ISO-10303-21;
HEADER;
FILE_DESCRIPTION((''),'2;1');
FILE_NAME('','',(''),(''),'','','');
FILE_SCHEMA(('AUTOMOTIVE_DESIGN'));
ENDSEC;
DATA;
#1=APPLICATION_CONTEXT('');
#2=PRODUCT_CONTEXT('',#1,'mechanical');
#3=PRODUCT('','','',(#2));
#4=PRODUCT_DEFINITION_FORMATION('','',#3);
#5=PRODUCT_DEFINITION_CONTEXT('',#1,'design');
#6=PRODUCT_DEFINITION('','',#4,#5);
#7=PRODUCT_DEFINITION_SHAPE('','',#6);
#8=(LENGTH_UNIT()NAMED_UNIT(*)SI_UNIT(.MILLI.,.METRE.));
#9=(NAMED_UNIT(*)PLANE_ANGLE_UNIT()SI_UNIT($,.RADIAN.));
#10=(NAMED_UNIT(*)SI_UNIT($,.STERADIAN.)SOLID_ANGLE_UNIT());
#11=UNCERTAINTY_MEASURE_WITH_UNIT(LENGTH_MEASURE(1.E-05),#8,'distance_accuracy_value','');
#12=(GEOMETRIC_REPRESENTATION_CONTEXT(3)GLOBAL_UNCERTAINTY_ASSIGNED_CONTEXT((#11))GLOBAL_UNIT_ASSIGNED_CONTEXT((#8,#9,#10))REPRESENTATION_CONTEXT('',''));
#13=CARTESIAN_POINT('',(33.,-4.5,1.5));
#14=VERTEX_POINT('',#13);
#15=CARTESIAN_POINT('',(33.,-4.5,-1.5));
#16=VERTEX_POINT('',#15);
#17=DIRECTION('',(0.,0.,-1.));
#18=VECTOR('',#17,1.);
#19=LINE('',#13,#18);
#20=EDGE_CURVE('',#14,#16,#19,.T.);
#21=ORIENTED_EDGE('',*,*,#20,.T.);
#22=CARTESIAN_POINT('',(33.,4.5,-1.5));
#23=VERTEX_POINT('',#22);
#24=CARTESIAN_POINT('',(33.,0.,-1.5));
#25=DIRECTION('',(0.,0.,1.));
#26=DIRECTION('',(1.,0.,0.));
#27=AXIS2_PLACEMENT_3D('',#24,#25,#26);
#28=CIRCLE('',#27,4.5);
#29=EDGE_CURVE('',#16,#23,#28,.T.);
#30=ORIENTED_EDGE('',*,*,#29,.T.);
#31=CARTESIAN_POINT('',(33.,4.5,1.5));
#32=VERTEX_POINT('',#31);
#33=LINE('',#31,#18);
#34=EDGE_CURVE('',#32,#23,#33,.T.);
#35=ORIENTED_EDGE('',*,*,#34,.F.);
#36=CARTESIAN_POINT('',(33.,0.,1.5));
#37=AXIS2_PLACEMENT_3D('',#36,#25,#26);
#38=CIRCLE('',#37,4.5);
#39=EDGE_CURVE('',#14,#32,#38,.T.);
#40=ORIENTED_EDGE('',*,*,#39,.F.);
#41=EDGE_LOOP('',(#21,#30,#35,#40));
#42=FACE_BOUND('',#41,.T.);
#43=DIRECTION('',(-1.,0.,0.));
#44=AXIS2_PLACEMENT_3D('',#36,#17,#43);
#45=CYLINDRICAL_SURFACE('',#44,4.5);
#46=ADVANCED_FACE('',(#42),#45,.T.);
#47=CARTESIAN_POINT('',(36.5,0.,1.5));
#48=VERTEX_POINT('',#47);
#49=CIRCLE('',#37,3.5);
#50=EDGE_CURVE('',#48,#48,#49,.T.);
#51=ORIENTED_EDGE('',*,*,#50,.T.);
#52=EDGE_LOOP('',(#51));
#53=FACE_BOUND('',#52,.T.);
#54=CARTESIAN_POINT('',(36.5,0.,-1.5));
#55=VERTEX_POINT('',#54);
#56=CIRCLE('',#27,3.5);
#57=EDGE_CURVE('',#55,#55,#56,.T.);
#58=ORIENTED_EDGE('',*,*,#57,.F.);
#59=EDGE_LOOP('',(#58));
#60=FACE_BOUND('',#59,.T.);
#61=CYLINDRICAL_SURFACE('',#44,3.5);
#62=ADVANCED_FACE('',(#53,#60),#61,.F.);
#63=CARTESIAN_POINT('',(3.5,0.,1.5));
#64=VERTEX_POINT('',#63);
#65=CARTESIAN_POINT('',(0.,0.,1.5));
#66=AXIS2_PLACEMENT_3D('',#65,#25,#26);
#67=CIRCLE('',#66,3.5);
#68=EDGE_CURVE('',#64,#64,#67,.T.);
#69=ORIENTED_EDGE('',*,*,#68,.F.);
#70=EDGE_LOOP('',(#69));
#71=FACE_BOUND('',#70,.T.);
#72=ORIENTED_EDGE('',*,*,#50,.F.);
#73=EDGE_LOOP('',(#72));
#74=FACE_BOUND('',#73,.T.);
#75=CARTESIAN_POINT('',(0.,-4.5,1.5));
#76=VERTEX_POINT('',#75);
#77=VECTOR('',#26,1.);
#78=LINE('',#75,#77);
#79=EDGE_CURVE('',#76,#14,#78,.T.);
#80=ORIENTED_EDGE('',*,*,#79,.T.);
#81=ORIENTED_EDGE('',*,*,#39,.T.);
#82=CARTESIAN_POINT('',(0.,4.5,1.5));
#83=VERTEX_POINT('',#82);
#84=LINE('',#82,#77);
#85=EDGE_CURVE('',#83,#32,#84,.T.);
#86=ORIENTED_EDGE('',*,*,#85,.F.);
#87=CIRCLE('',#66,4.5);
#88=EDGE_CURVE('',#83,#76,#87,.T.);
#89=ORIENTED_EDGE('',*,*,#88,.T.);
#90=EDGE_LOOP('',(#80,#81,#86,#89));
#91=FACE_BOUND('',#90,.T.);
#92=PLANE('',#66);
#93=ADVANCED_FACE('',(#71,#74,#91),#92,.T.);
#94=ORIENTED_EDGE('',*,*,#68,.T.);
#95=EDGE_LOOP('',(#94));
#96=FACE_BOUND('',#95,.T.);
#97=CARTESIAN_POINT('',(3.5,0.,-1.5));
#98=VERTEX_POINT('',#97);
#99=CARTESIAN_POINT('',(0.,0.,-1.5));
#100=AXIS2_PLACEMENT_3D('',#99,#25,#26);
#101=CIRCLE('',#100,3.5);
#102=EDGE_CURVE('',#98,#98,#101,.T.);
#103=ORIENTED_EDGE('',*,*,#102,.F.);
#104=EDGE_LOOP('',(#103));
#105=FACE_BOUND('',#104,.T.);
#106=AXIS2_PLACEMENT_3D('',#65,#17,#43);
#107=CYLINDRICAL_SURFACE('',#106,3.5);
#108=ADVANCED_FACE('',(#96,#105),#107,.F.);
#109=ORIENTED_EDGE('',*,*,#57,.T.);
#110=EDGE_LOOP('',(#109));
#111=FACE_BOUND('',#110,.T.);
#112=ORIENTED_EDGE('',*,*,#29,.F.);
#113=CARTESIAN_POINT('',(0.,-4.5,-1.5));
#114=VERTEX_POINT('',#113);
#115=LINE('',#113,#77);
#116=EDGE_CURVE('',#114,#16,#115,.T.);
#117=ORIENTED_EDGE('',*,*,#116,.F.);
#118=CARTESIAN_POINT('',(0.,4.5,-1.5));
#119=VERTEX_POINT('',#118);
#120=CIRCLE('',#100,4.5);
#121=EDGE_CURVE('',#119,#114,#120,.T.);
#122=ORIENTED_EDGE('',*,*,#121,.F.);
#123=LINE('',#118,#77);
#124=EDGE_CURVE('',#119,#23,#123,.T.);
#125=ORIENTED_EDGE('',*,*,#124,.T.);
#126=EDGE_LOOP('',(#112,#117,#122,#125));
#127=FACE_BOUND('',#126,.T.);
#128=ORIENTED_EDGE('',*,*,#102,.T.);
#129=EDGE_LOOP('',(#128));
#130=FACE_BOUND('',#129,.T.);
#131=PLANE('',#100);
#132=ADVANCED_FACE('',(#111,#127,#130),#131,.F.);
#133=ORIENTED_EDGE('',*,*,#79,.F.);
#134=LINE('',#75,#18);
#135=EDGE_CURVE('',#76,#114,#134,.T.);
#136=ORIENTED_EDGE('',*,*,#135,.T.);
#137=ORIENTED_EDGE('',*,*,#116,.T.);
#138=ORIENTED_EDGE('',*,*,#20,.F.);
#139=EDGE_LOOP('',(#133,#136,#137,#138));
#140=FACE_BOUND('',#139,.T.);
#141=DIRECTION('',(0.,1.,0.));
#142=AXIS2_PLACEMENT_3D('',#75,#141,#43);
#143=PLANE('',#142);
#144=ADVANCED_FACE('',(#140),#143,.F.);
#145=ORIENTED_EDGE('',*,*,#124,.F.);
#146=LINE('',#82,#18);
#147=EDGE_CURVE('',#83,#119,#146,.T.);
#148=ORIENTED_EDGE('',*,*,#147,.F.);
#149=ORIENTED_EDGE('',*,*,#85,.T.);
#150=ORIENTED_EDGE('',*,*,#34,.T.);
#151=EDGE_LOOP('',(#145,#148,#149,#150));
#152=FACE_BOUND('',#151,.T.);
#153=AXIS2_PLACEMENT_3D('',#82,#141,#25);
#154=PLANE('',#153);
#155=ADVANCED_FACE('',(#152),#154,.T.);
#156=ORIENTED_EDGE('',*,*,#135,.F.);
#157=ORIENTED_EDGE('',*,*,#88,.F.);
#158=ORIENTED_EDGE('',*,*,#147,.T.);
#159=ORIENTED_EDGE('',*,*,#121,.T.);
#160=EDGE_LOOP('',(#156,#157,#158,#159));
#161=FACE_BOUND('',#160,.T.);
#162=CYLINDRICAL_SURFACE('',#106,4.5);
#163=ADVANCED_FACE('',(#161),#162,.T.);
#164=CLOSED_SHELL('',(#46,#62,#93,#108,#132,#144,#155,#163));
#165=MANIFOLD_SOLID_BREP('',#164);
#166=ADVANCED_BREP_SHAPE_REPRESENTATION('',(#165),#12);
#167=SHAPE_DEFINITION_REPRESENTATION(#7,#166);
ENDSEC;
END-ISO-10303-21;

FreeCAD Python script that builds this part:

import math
import FreeCAD as App
import Part
import Sketcher
from FreeCAD import Vector
Q = App.Units.Quantity

doc = App.newDocument("Part")
body = doc.addObject("PartDesign::Body", "Body")

sketch1 = body.newObject("Sketcher::SketchObject", "Sketch")
sketch1.AttachmentSupport = (doc.getObject("XY_Plane"), [""])
sketch1.MapMode = "FlatFace"
sketch1.addGeometry(Part.ArcOfCircle(Part.Circle(Vector(0, 0, 0), Vector(0, 0, 1), 4.5), math.radians(90), math.radians(270)), False)
sketch1.addGeometry(Part.LineSegment(Vector(0, -4.5, 0), Vector(33, -4.5, 0)), False)
sketch1.addGeometry(Part.ArcOfCircle(Part.Circle(Vector(33, 0, 0), Vector(0, 0, 1), 4.5), math.radians(-90), math.radians(90)), False)
sketch1.addGeometry(Part.LineSegment(Vector(33, 4.5, 0), Vector(0, 4.5, 0)), False)
sketch1.addGeometry(Part.Circle(Vector(0, 0, 0), Vector(0, 0, 1), 3.5), False)
sketch1.addGeometry(Part.Circle(Vector(33, 0, 0), Vector(0, 0, 1), 3.5), False)
sketch1.addConstraint(Sketcher.Constraint("Tangent", 0, 2, 1, 1))
sketch1.addConstraint(Sketcher.Constraint("Tangent", 1, 2, 2, 1))
sketch1.addConstraint(Sketcher.Constraint("Tangent", 2, 2, 3, 1))
sketch1.addConstraint(Sketcher.Constraint("Tangent", 3, 2, 0, 1))
sketch1.addConstraint(Sketcher.Constraint("Horizontal", 1))
sketch1.addConstraint(Sketcher.Constraint("Horizontal", 3))
sketch1.addConstraint(Sketcher.Constraint("Coincident", 0, 3, -1, 1))
sketch1.addConstraint(Sketcher.Constraint("Coincident", 4, 3, -1, 1))
sketch1.addConstraint(Sketcher.Constraint("Coincident", 5, 3, 2, 3))
sketch1.addConstraint(Sketcher.Constraint("Equal", 4, 5))
sketch1.addConstraint(Sketcher.Constraint("Diameter", 4, Q("7 mm")))
sketch1.addConstraint(Sketcher.Constraint("Radius", 0, Q("4.5 mm")))
sketch1.addConstraint(Sketcher.Constraint("DistanceX", 1, 1, 1, 2, Q("33 mm")))
pad1 = body.newObject("PartDesign::Pad", "Pad")
pad1.Profile = sketch1
pad1.Length = 3
pad1.Midplane = True

doc.recompute()
